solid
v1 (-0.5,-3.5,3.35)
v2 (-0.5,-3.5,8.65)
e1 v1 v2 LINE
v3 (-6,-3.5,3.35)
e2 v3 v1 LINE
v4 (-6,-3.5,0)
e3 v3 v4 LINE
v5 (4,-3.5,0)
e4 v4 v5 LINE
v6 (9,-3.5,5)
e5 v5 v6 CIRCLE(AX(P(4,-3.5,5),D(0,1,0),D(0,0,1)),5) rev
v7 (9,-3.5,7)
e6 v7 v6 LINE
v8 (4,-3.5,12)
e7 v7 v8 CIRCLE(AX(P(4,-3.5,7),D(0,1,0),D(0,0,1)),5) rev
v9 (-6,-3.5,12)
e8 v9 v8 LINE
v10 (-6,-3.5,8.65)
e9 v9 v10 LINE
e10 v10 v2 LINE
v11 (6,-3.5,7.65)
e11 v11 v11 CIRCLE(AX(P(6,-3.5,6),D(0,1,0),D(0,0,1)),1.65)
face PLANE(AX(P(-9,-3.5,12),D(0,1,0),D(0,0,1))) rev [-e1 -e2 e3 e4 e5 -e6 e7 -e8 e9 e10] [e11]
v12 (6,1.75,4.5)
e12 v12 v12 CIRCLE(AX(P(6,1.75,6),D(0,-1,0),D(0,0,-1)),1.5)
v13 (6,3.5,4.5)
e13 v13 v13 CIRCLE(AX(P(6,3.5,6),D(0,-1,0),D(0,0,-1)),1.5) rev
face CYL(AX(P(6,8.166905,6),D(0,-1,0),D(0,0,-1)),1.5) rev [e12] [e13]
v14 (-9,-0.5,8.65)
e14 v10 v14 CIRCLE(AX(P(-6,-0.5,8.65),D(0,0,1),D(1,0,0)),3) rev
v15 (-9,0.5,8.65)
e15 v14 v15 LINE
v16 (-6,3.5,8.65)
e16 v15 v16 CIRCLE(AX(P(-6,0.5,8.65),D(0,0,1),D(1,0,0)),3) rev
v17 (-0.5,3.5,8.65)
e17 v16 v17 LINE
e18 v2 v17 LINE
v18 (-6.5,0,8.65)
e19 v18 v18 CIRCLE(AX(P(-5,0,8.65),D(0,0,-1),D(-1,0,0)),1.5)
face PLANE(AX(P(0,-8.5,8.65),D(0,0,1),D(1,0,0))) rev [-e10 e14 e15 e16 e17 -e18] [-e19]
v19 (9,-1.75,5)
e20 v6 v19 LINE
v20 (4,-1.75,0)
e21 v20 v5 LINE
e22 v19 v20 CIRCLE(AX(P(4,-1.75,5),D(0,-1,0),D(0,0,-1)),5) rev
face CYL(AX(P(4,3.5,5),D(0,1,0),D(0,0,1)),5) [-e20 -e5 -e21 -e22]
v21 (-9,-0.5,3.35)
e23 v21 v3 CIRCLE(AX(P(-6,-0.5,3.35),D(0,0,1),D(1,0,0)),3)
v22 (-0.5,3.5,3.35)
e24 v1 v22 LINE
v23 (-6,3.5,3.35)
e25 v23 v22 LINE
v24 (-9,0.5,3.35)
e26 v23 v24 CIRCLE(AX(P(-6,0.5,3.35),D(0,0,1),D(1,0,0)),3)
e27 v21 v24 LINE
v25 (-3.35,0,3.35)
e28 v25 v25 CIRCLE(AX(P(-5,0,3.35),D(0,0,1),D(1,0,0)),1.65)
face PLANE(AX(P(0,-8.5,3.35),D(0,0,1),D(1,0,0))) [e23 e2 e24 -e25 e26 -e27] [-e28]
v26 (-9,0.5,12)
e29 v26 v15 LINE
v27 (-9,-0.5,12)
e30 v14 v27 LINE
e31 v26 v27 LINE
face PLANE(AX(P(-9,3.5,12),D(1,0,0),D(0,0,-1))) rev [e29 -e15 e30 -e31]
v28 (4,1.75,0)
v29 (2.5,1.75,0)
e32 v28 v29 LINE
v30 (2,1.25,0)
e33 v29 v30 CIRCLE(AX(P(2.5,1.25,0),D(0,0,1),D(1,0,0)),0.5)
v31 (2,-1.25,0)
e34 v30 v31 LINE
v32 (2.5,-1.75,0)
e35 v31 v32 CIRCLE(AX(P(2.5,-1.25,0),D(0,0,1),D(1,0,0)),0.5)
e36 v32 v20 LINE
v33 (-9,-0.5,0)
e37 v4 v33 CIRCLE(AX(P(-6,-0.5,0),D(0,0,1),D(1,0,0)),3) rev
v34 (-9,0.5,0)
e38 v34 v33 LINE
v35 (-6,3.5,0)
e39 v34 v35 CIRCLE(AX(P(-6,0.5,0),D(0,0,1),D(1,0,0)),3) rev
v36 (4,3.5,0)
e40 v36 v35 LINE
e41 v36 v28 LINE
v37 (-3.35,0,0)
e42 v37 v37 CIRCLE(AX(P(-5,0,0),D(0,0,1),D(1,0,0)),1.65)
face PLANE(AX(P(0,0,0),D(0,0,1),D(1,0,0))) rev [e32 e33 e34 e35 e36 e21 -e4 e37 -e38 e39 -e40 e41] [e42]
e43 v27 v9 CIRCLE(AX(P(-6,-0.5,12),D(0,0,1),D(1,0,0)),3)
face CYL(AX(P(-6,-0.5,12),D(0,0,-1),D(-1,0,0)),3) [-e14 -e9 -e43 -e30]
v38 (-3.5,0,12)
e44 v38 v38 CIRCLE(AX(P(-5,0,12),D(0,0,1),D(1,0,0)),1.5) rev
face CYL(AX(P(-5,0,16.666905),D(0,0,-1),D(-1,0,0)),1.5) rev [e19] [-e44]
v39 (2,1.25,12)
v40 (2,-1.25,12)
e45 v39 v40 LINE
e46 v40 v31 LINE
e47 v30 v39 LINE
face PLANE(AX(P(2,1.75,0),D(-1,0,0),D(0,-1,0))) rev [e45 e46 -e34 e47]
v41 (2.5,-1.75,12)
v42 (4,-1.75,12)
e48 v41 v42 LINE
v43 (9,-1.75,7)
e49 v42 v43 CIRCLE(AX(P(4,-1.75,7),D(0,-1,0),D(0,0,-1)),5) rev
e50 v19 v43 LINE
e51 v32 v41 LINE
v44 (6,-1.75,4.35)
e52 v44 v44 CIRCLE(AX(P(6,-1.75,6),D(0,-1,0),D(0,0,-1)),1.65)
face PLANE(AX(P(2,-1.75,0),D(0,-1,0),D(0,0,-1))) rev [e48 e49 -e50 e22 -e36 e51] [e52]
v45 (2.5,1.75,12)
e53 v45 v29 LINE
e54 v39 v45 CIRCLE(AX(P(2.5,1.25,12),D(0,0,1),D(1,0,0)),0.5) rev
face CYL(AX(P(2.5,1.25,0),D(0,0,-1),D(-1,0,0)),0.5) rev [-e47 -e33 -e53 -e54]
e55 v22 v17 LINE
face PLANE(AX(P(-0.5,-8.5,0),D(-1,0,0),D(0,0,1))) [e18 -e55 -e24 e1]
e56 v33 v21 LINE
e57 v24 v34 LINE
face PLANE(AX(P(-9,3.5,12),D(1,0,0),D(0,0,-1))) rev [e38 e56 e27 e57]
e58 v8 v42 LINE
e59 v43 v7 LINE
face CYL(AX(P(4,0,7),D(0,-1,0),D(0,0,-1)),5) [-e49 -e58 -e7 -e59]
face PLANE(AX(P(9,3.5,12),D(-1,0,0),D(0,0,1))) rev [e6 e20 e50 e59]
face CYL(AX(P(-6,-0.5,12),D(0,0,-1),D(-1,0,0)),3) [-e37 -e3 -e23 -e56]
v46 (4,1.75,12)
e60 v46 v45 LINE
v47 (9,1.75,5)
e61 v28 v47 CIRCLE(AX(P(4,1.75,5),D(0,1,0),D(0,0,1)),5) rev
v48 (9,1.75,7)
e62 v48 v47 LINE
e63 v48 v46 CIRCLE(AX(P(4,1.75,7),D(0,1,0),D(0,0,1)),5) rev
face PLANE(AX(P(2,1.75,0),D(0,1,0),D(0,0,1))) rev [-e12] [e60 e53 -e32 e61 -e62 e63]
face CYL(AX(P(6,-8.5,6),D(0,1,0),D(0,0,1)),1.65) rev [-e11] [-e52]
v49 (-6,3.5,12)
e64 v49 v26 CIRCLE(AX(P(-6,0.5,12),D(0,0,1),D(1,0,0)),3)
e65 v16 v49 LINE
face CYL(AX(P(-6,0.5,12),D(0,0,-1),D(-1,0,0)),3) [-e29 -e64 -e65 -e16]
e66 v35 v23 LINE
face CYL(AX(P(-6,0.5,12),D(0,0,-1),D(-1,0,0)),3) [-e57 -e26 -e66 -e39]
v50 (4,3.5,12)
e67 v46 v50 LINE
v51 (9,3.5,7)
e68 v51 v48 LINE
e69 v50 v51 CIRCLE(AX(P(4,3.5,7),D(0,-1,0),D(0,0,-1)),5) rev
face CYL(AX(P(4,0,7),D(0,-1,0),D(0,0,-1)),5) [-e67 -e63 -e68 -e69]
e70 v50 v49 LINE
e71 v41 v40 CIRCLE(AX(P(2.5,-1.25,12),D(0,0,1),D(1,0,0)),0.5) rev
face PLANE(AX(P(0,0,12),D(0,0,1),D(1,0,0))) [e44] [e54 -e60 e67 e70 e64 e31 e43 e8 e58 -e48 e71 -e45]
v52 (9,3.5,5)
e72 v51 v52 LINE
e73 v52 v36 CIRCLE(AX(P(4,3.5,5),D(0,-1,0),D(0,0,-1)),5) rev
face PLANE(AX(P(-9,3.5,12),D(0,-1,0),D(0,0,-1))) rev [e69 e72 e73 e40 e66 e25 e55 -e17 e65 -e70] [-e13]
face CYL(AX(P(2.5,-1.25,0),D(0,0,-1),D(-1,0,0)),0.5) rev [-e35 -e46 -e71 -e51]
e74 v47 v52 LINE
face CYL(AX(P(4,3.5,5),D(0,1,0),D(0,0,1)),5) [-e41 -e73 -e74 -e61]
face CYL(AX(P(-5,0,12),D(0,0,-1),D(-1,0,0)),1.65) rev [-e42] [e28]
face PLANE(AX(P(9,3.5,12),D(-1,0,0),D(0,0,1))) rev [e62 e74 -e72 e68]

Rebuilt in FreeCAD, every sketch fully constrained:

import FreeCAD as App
import Part
import Sketcher
Q = App.Units.Quantity


def edges_at(feature, points):
    """Names of the edges that pass closest to the given points."""
    edges = feature.Shape.Edges
    near = lambda p: min(range(len(edges)), key=lambda i: edges[i].distToShape(Part.Vertex(*p))[0])
    return sorted({f"Edge{near(p) + 1}" for p in points})


def add_polygon(sketch, points):
    """Adds a closed chain of lines whose ends are joined by coincident constraints."""
    first, n = sketch.GeometryCount, len(points)
    for a, b in zip(points, points[1:] + points[:1]):
        sketch.addGeometry(Part.LineSegment(App.Vector(*a, 0), App.Vector(*b, 0)), False)
    for i in range(n):
        sketch.addConstraint(Sketcher.Constraint("Coincident", first + i, 2, first + (i + 1) % n, 1))

doc = App.newDocument("Part")
params = doc.addObject("Spreadsheet::Sheet", "Params")
for row, (alias, value) in enumerate([
    ("sketch1_diameter", "3.3 mm"),
    ("sketch1_width", "18 mm"),
    ("sketch1_height", "7 mm"),
    ("pad1_length", "12 mm"),
    ("sketch2_width", "8.5 mm"),
    ("sketch2_height", "5.3 mm"),
    ("pocket1_length", "12 mm"),
    ("sketch3_width", "14 mm"),
    ("sketch3_height", "3.5 mm"),
    ("pocket2_length", "12 mm"),
    ("sketch4_diameter", "3.3 mm"),
    ("pocket3_length", "12 mm"),
    ("fillet_radius", "5 mm"),
    ("fillet2_radius", "3 mm"),
    ("fillet3_radius", "0.5 mm"),
    ("sketch5_diameter", "3 mm"),
    ("sketch5_diameter2", "3.3 mm"),
    ("pad2_length", "3.35 mm"),
    ("sketch6_diameter", "3 mm"),
    ("sketch6_diameter2", "3.3 mm"),
    ("pad3_length", "1.75 mm"),
], start=1):
    params.set(f"A{row}", alias)
    params.set(f"B{row}", "=" + value)
    params.setAlias(f"B{row}", alias)

body = doc.addObject("PartDesign::Body", "Body")

sketch1 = doc.addObject("Sketcher::SketchObject", "Sketch")
body.addObject(sketch1)
sketch1.AttachmentSupport = (doc.XY_Plane, [""])
sketch1.MapMode = "FlatFace"
add_polygon(sketch1, [(-9, 3.5), (-9, -3.5), (9, -3.5), (9, 3.5)])
sketch1.addGeometry(Part.Circle(App.Vector(-5, 0, 0), App.Vector(0, 0, 1), 1.6), False)
sketch1.addConstraint(Sketcher.Constraint("Vertical", 0))
sketch1.addConstraint(Sketcher.Constraint("Horizontal", 1))
sketch1.addConstraint(Sketcher.Constraint("Vertical", 2))
sketch1.addConstraint(Sketcher.Constraint("Horizontal", 3))
sketch1.addConstraint(Sketcher.Constraint("Symmetric", 0, 2, 2, 2, -1, 1))
sketch1.addConstraint(Sketcher.Constraint("PointOnObject", 4, 3, -1))
sketch1.addConstraint(Sketcher.Constraint("Diameter", 4, Q("3.3 mm")))
sketch1.addConstraint(Sketcher.Constraint("DistanceX", 1, 1, 1, 2, Q("18 mm")))
sketch1.addConstraint(Sketcher.Constraint("DistanceY", 0, 2, 0, 1, Q("7 mm")))
sketch1.addConstraint(Sketcher.Constraint("DistanceX", 4, 3, -1, 1, Q("5 mm")))
sketch1.setExpression("Constraints[10]", "Params.sketch1_diameter")
sketch1.setExpression("Constraints[11]", "Params.sketch1_width")
sketch1.setExpression("Constraints[12]", "Params.sketch1_height")
pad1 = doc.addObject("PartDesign::Pad", "Pad")
body.addObject(pad1)
pad1.Profile = sketch1
pad1.setExpression("Length", "Params.pad1_length")

sketch2 = doc.addObject("Sketcher::SketchObject", "Sketch001")
body.addObject(sketch2)
sketch2.AttachmentSupport = (doc.XZ_Plane, [""])
sketch2.MapMode = "FlatFace"
sketch2.AttachmentOffset = App.Placement(App.Vector(0, 0, -3.5), App.Rotation())
add_polygon(sketch2, [(-9, 3), (-9, 9), (0, 9), (0, 3)])
sketch2.addConstraint(Sketcher.Constraint("Vertical", 0))
sketch2.addConstraint(Sketcher.Constraint("Horizontal", 1))
sketch2.addConstraint(Sketcher.Constraint("Vertical", 2))
sketch2.addConstraint(Sketcher.Constraint("Horizontal", 3))
sketch2.addConstraint(Sketcher.Constraint("DistanceX", 1, 1, 1, 2, Q("8.5 mm")))
sketch2.addConstraint(Sketcher.Constraint("DistanceY", 0, 1, 0, 2, Q("5.3 mm")))
sketch2.addConstraint(Sketcher.Constraint("DistanceX", 0, 2, -1, 1, Q("9 mm")))
sketch2.addConstraint(Sketcher.Constraint("DistanceY", -1, 1, 0, 2, Q("8.65 mm")))
sketch2.setExpression("Constraints[8]", "Params.sketch2_width")
sketch2.setExpression("Constraints[9]", "Params.sketch2_height")
pocket1 = doc.addObject("PartDesign::Pocket", "Pocket")
body.addObject(pocket1)
pocket1.Profile = sketch2
pocket1.setExpression("Length", "Params.pocket1_length")
pocket1.Reversed = True

sketch3 = doc.addObject("Sketcher::SketchObject", "Sketch002")
body.addObject(sketch3)
sketch3.AttachmentSupport = (doc.XY_Plane, [""])
sketch3.MapMode = "FlatFace"
sketch3.AttachmentOffset = App.Placement(App.Vector(0, 0, 12), App.Rotation())
add_polygon(sketch3, [(2, 1.8), (2, -1.8), (16, -1.8), (16, 1.8)])
sketch3.addConstraint(Sketcher.Constraint("Vertical", 0))
sketch3.addConstraint(Sketcher.Constraint("Horizontal", 1))
sketch3.addConstraint(Sketcher.Constraint("Vertical", 2))
sketch3.addConstraint(Sketcher.Constraint("Horizontal", 3))
sketch3.addConstraint(Sketcher.Constraint("DistanceX", 1, 1, 1, 2, Q("14 mm")))
sketch3.addConstraint(Sketcher.Constraint("DistanceY", 0, 2, 0, 1, Q("3.5 mm")))
sketch3.addConstraint(Sketcher.Constraint("DistanceX", -1, 1, 0, 2, Q("2 mm")))
sketch3.addConstraint(Sketcher.Constraint("DistanceY", 0, 2, -1, 1, Q("1.75 mm")))
sketch3.setExpression("Constraints[8]", "Params.sketch3_width")
sketch3.setExpression("Constraints[9]", "Params.sketch3_height")
pocket2 = doc.addObject("PartDesign::Pocket", "Pocket001")
body.addObject(pocket2)
pocket2.Profile = sketch3
pocket2.setExpression("Length", "Params.pocket2_length")

sketch4 = doc.addObject("Sketcher::SketchObject", "Sketch003")
body.addObject(sketch4)
sketch4.AttachmentSupport = (doc.XZ_Plane, [""])
sketch4.MapMode = "FlatFace"
sketch4.AttachmentOffset = App.Placement(App.Vector(0, 0, -3.5), App.Rotation())
sketch4.addGeometry(Part.Circle(App.Vector(6, 6, 0), App.Vector(0, 0, 1), 1.6), False)
sketch4.addConstraint(Sketcher.Constraint("Diameter", 0, Q("3.3 mm")))
sketch4.addConstraint(Sketcher.Constraint("DistanceX", -1, 1, 0, 3, Q("6 mm")))
sketch4.addConstraint(Sketcher.Constraint("DistanceY", -1, 1, 0, 3, Q("6 mm")))
sketch4.setExpression("Constraints[0]", "Params.sketch4_diameter")
pocket3 = doc.addObject("PartDesign::Pocket", "Pocket002")
body.addObject(pocket3)
pocket3.Profile = sketch4
pocket3.setExpression("Length", "Params.pocket3_length")
pocket3.Reversed = True
doc.recompute()

fillet = doc.addObject("PartDesign::Fillet", "Fillet")
body.addObject(fillet)
fillet.Base = (pocket3, edges_at(pocket3, [
    (9, 2.625, 0),
    (9, 2.625, 12),
    (9, -2.625, 12),
    (9, -2.625, 0),
]))
fillet.setExpression("Radius", "Params.fillet_radius")
doc.recompute()

fillet2 = doc.addObject("PartDesign::Fillet", "Fillet001")
body.addObject(fillet2)
fillet2.Base = (fillet, edges_at(fillet, [
    (-9, -3.5, 1.675),
    (-9, 3.5, 1.675),
    (-9, -3.5, 10.325),
    (-9, 3.5, 10.325),
]))
fillet2.setExpression("Radius", "Params.fillet2_radius")
doc.recompute()

fillet3 = doc.addObject("PartDesign::Fillet", "Fillet002")
body.addObject(fillet3)
fillet3.Base = (fillet2, edges_at(fillet2, [(2, 1.75, 6), (2, -1.75, 6)]))
fillet3.setExpression("Radius", "Params.fillet3_radius")

sketch5 = doc.addObject("Sketcher::SketchObject", "Sketch004")
body.addObject(sketch5)
sketch5.AttachmentSupport = (doc.XY_Plane, [""])
sketch5.MapMode = "FlatFace"
sketch5.AttachmentOffset = App.Placement(App.Vector(0, 0, 8.65), App.Rotation())
sketch5.addGeometry(Part.Circle(App.Vector(-5, 0, 0), App.Vector(0, 0, 1), 1.6), False)
sketch5.addGeometry(Part.Circle(App.Vector(-5, 0, 0), App.Vector(0, 0, 1), 1.5), False)
sketch5.addConstraint(Sketcher.Constraint("Coincident", 1, 3, 0, 3))
sketch5.addConstraint(Sketcher.Constraint("PointOnObject", 0, 3, -1))
sketch5.addConstraint(Sketcher.Constraint("Diameter", 1, Q("3 mm")))
sketch5.addConstraint(Sketcher.Constraint("Diameter", 0, Q("3.3 mm")))
sketch5.addConstraint(Sketcher.Constraint("DistanceX", 0, 3, -1, 1, Q("5 mm")))
sketch5.setExpression("Constraints[2]", "Params.sketch5_diameter")
sketch5.setExpression("Constraints[3]", "Params.sketch5_diameter2")
pad2 = doc.addObject("PartDesign::Pad", "Pad001")
body.addObject(pad2)
pad2.Profile = sketch5
pad2.setExpression("Length", "Params.pad2_length")

sketch6 = doc.addObject("Sketcher::SketchObject", "Sketch005")
body.addObject(sketch6)
sketch6.AttachmentSupport = (doc.XZ_Plane, [""])
sketch6.MapMode = "FlatFace"
sketch6.AttachmentOffset = App.Placement(App.Vector(0, 0, -3.5), App.Rotation())
sketch6.addGeometry(Part.Circle(App.Vector(6, 6, 0), App.Vector(0, 0, 1), 1.6), False)
sketch6.addGeometry(Part.Circle(App.Vector(6, 6, 0), App.Vector(0, 0, 1), 1.5), False)
sketch6.addConstraint(Sketcher.Constraint("Coincident", 1, 3, 0, 3))
sketch6.addConstraint(Sketcher.Constraint("Diameter", 1, Q("3 mm")))
sketch6.addConstraint(Sketcher.Constraint("Diameter", 0, Q("3.3 mm")))
sketch6.addConstraint(Sketcher.Constraint("DistanceX", -1, 1, 0, 3, Q("6 mm")))
sketch6.addConstraint(Sketcher.Constraint("DistanceY", -1, 1, 0, 3, Q("6 mm")))
sketch6.setExpression("Constraints[1]", "Params.sketch6_diameter")
sketch6.setExpression("Constraints[2]", "Params.sketch6_diameter2")
pad3 = doc.addObject("PartDesign::Pad", "Pad002")
body.addObject(pad3)
pad3.Profile = sketch6
pad3.setExpression("Length", "Params.pad3_length")

doc.recompute()
